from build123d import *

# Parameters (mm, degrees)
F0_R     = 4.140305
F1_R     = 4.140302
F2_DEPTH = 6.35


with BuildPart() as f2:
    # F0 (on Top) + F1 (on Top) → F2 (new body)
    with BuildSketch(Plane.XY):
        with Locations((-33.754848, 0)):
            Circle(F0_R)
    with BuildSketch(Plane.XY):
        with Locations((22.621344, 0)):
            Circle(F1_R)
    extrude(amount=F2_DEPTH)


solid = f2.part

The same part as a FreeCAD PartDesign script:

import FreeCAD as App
import Part
import Sketcher
Q = App.Units.Quantity

doc = App.newDocument("Part")
body = doc.addObject("PartDesign::Body", "Body")
body.AllowCompound = True

sketch1 = body.newObject("Sketcher::SketchObject", "Sketch")
sketch1.AttachmentSupport = (doc.getObject("XY_Plane"), [""])
sketch1.MapMode = "FlatFace"
sketch1.addGeometry([
    Part.Circle(App.Vector(-33.8, 0, 0), App.Vector(0, 0, 1), 4.1),
    Part.Circle(App.Vector(22.6, 0, 0), App.Vector(0, 0, 1), 4.1),
], False)
sketch1.addConstraint([
    Sketcher.Constraint("PointOnObject", 0, 3, -1),
    Sketcher.Constraint("PointOnObject", 1, 3, -1),
    Sketcher.Constraint("Diameter", 0, Q("8.28061 mm")),
    Sketcher.Constraint("Diameter", 1, Q("8.280604 mm")),
    Sketcher.Constraint("DistanceX", 0, 3, -1, 1, Q("33.754848 mm")),
    Sketcher.Constraint("DistanceX", -1, 1, 1, 3, Q("22.621344 mm")),
])
pad1 = body.newObject("PartDesign::Pad", "Pad")
pad1.Profile = sketch1
pad1.Length = Q("0.25 in")

doc.recompute()
